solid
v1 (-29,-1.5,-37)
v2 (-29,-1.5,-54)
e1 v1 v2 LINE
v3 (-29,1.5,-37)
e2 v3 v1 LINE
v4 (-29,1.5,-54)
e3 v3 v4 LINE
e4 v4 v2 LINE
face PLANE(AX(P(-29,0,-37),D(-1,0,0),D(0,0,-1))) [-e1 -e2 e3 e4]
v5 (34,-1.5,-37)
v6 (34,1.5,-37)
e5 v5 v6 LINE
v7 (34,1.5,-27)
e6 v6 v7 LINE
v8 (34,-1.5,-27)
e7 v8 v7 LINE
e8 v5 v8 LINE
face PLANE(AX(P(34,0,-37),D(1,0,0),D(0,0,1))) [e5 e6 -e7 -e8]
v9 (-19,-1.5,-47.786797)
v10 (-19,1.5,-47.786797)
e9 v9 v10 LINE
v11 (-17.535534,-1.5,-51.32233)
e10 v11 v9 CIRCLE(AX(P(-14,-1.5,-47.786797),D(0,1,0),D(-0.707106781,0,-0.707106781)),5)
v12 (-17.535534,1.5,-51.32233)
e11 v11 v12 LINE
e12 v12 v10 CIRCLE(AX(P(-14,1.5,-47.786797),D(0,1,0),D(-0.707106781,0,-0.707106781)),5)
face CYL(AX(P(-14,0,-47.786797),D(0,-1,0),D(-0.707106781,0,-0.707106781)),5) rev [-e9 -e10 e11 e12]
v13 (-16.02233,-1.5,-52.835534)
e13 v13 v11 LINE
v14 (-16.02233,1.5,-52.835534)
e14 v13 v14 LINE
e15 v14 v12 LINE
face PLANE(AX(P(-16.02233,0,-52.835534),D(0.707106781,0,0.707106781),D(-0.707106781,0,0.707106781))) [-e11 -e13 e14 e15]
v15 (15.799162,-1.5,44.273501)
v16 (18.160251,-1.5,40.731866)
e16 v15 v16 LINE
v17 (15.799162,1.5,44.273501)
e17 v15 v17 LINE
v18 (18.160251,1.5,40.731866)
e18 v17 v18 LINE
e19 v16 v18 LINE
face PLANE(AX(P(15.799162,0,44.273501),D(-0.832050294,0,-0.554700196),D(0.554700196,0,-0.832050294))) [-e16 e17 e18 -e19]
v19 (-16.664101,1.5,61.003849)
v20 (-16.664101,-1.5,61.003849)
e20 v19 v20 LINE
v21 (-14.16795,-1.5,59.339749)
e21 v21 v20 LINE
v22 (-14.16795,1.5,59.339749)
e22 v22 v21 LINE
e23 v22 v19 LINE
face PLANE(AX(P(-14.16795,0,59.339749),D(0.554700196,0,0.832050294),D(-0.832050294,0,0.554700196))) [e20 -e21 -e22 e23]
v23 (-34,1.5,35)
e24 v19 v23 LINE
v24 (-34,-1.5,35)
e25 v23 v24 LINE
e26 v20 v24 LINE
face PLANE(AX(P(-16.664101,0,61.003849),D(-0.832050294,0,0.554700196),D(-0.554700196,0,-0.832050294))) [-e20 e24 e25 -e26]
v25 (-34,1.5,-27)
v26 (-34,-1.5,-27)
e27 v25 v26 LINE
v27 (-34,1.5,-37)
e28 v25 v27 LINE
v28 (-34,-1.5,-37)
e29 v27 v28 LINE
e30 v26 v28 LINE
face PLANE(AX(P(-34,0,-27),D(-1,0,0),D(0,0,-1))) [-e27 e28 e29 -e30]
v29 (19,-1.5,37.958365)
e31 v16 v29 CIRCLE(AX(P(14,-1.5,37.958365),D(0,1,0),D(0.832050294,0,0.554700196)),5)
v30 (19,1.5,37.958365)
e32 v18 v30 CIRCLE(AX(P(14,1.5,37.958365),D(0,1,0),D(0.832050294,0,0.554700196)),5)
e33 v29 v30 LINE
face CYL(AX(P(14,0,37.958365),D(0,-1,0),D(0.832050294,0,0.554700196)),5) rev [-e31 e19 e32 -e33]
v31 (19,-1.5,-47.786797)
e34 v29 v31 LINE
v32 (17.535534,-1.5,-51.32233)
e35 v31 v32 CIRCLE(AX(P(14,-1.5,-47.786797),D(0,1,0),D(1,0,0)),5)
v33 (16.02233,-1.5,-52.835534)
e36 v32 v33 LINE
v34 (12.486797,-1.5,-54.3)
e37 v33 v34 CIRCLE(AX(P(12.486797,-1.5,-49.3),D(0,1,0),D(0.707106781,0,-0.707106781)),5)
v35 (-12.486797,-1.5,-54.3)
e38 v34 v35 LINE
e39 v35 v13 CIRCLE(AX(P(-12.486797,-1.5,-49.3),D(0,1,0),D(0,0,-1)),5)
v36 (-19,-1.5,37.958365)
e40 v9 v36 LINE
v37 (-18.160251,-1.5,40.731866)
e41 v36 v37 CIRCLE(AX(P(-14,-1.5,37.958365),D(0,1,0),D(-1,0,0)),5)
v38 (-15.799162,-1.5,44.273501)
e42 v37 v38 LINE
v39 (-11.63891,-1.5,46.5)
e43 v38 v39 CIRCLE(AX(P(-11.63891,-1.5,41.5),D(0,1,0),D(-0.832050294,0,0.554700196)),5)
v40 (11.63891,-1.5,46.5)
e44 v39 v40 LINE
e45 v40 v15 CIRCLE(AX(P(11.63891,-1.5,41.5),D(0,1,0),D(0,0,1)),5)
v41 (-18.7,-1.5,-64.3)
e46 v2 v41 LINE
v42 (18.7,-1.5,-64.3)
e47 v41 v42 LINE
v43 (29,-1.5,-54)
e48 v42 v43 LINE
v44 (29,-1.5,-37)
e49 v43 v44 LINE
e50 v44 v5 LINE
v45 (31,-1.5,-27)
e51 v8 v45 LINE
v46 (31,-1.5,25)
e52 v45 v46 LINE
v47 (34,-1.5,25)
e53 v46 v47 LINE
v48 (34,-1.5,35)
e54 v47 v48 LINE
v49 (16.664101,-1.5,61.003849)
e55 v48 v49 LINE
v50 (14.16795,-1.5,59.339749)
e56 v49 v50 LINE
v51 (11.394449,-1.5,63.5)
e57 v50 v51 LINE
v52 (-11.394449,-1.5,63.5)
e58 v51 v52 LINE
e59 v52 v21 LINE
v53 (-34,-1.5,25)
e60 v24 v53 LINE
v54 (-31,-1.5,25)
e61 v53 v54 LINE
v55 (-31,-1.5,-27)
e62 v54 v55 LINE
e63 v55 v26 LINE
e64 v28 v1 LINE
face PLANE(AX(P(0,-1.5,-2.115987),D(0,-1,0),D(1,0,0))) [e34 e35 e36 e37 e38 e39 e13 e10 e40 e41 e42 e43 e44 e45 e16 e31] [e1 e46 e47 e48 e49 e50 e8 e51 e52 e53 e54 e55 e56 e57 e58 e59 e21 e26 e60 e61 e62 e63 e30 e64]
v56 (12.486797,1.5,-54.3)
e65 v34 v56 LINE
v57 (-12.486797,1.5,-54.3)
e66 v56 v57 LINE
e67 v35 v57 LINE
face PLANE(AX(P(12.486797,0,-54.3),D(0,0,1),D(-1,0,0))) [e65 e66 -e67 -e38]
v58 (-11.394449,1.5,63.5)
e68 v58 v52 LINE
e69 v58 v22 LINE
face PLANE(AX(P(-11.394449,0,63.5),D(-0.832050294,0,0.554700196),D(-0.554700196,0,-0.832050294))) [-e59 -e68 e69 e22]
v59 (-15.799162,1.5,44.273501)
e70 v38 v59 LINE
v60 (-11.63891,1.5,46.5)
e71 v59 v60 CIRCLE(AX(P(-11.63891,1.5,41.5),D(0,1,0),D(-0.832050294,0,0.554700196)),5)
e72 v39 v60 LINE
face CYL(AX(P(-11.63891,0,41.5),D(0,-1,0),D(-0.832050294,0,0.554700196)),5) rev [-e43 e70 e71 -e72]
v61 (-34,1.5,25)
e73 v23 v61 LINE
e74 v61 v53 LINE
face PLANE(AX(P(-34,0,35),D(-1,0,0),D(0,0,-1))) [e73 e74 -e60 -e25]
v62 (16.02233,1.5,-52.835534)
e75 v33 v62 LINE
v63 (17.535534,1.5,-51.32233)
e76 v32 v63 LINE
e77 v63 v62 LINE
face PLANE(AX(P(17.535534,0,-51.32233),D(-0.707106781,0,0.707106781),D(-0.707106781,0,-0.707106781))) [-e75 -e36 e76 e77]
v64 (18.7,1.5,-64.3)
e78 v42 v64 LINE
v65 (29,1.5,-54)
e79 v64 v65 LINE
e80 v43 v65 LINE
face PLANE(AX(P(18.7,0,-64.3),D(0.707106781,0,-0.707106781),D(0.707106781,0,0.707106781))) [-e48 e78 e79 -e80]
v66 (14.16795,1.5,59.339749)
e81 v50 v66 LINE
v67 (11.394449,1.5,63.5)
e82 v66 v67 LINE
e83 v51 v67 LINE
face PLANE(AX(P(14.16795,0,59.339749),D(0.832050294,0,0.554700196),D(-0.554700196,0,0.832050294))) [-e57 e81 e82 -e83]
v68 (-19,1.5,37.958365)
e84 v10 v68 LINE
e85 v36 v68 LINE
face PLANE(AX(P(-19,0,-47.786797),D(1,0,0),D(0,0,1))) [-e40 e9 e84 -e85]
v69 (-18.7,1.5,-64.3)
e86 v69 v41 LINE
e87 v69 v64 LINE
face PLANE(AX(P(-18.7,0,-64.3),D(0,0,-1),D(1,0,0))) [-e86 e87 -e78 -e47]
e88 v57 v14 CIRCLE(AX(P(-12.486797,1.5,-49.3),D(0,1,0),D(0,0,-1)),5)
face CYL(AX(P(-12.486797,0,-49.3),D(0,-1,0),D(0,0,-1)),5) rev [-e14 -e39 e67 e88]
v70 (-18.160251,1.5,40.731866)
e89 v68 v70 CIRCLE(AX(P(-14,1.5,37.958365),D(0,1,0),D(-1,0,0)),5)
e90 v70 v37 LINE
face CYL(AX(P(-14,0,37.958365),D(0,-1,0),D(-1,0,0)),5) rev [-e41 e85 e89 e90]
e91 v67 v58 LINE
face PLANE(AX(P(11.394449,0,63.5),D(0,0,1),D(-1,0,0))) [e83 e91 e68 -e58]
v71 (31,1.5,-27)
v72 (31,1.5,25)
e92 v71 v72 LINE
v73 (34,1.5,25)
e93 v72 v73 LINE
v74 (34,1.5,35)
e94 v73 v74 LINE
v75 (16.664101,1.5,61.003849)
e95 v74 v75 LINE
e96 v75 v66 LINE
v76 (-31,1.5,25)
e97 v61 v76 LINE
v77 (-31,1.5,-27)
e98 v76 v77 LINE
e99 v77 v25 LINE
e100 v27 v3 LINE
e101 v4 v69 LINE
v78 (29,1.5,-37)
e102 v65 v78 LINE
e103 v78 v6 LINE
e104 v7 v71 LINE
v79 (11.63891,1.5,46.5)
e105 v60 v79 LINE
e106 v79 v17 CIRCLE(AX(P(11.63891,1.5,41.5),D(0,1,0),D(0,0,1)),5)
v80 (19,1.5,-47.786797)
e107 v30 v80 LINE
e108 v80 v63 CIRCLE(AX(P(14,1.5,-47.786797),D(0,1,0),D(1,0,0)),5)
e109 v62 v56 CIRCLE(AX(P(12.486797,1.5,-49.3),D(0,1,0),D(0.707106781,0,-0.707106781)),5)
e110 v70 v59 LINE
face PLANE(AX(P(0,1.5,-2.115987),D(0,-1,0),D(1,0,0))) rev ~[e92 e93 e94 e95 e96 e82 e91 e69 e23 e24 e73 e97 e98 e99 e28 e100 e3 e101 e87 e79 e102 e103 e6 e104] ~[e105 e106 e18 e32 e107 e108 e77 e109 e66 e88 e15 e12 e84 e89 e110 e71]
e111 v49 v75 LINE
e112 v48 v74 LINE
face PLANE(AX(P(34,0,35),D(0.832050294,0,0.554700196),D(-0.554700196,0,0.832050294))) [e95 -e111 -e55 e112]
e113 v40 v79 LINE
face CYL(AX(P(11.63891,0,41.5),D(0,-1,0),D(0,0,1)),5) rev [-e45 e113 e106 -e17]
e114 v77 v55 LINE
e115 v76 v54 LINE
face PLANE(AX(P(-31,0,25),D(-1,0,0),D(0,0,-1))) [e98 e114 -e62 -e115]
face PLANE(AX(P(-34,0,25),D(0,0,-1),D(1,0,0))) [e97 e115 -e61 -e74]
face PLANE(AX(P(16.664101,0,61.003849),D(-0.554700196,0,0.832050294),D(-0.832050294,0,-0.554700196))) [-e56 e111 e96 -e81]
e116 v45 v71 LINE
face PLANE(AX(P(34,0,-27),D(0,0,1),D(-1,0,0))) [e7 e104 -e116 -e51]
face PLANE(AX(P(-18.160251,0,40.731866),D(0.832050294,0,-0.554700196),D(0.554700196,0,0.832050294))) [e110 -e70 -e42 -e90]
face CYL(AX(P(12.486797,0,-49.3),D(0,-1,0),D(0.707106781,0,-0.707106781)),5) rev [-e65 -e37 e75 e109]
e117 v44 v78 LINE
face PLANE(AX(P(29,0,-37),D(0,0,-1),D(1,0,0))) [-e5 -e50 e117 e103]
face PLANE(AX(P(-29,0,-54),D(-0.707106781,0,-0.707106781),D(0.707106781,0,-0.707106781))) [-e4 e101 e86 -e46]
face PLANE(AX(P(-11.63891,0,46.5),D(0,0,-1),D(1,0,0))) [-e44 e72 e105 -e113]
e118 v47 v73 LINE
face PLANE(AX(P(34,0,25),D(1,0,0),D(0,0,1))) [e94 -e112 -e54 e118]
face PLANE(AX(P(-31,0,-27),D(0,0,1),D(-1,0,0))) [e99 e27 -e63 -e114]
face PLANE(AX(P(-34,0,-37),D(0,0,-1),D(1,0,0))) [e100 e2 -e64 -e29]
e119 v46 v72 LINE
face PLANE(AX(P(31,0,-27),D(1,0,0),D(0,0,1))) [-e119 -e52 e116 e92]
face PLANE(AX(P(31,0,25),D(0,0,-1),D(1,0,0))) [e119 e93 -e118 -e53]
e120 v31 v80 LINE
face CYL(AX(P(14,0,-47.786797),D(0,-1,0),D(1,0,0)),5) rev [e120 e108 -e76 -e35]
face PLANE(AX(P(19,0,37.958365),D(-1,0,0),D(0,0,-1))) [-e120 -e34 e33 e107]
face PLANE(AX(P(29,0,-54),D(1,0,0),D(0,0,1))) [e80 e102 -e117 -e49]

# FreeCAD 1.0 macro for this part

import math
import FreeCAD as App
import Part
import Sketcher

doc = App.newDocument("Part")
body = doc.addObject("PartDesign::Body", "Body")

# Sketch on XZ plane
sketch1 = body.newObject("Sketcher::SketchObject", "Sketch")
sketch1.AttachmentSupport = (doc.getObject("XZ_Plane"), [""])
sketch1.MapMode = "FlatFace"
sketch1.addGeometry([
    Part.LineSegment(App.Vector(11.4, 63.5, 0), App.Vector(-11.4, 63.5, 0)),  # 0
    Part.LineSegment(App.Vector(-11.4, 63.5, 0), App.Vector(-14.2, 59.3, 0)),  # 1
    Part.LineSegment(App.Vector(-14.2, 59.3, 0), App.Vector(-16.7, 61, 0)),  # 2
    Part.LineSegment(App.Vector(-16.7, 61, 0), App.Vector(-34, 35, 0)),  # 3
    Part.LineSegment(App.Vector(-34, 35, 0), App.Vector(-34, 25, 0)),  # 4
    Part.LineSegment(App.Vector(-34, 25, 0), App.Vector(-31, 25, 0)),  # 5
    Part.LineSegment(App.Vector(-31, 25, 0), App.Vector(-31, -27, 0)),  # 6
    Part.LineSegment(App.Vector(-31, -27, 0), App.Vector(-34, -27, 0)),  # 7
    Part.LineSegment(App.Vector(-34, -27, 0), App.Vector(-34, -37, 0)),  # 8
    Part.LineSegment(App.Vector(-34, -37, 0), App.Vector(-29, -37, 0)),  # 9
    Part.LineSegment(App.Vector(-29, -37, 0), App.Vector(-29, -54, 0)),  # 10
    Part.LineSegment(App.Vector(-29, -54, 0), App.Vector(-18.7, -64.3, 0)),  # 11
    Part.LineSegment(App.Vector(-18.7, -64.3, 0), App.Vector(18.7, -64.3, 0)),  # 12
    Part.LineSegment(App.Vector(18.7, -64.3, 0), App.Vector(29, -54, 0)),  # 13
    Part.LineSegment(App.Vector(29, -54, 0), App.Vector(29, -37, 0)),  # 14
    Part.LineSegment(App.Vector(29, -37, 0), App.Vector(34, -37, 0)),  # 15
    Part.LineSegment(App.Vector(34, -37, 0), App.Vector(34, -27, 0)),  # 16
    Part.LineSegment(App.Vector(34, -27, 0), App.Vector(31, -27, 0)),  # 17
    Part.LineSegment(App.Vector(31, -27, 0), App.Vector(31, 25, 0)),  # 18
    Part.LineSegment(App.Vector(31, 25, 0), App.Vector(34, 25, 0)),  # 19
    Part.LineSegment(App.Vector(34, 25, 0), App.Vector(34, 35, 0)),  # 20
    Part.LineSegment(App.Vector(34, 35, 0), App.Vector(16.7, 61, 0)),  # 21
    Part.LineSegment(App.Vector(16.7, 61, 0), App.Vector(14.2, 59.3, 0)),  # 22
    Part.LineSegment(App.Vector(14.2, 59.3, 0), App.Vector(11.4, 63.5, 0)),  # 23
    Part.ArcOfCircle(Part.Circle(App.Vector(-14, 38, 0), App.Vector(0, 0, 1), 5), math.radians(146), math.radians(180)),  # 24
    Part.LineSegment(App.Vector(-18.2, 40.7, 0), App.Vector(-15.8, 44.3, 0)),  # 25
    Part.ArcOfCircle(Part.Circle(App.Vector(-11.6, 41.5, 0), App.Vector(0, 0, 1), 5), math.radians(90), math.radians(146)),  # 26
    Part.LineSegment(App.Vector(-11.6, 46.5, 0), App.Vector(11.6, 46.5, 0)),  # 27
    Part.ArcOfCircle(Part.Circle(App.Vector(11.6, 41.5, 0), App.Vector(0, 0, 1), 5), math.radians(34), math.radians(90)),  # 28
    Part.LineSegment(App.Vector(15.8, 44.3, 0), App.Vector(18.2, 40.7, 0)),  # 29
    Part.ArcOfCircle(Part.Circle(App.Vector(14, 38, 0), App.Vector(0, 0, 1), 5), math.radians(0), math.radians(34)),  # 30
    Part.LineSegment(App.Vector(19, 38, 0), App.Vector(19, -47.8, 0)),  # 31
    Part.ArcOfCircle(Part.Circle(App.Vector(14, -47.8, 0), App.Vector(0, 0, 1), 5), math.radians(-45), math.radians(0)),  # 32
    Part.LineSegment(App.Vector(17.5, -51.3, 0), App.Vector(16, -52.8, 0)),  # 33
    Part.ArcOfCircle(Part.Circle(App.Vector(12.5, -49.3, 0), App.Vector(0, 0, 1), 5), math.radians(-90), math.radians(-45)),  # 34
    Part.LineSegment(App.Vector(12.5, -54.3, 0), App.Vector(-12.5, -54.3, 0)),  # 35
    Part.ArcOfCircle(Part.Circle(App.Vector(-12.5, -49.3, 0), App.Vector(0, 0, 1), 5), math.radians(-135), math.radians(-90)),  # 36
    Part.LineSegment(App.Vector(-16, -52.8, 0), App.Vector(-17.5, -51.3, 0)),  # 37
    Part.ArcOfCircle(Part.Circle(App.Vector(-14, -47.8, 0), App.Vector(0, 0, 1), 5), math.radians(180), math.radians(225)),  # 38
    Part.LineSegment(App.Vector(-19, -47.8, 0), App.Vector(-19, 38, 0)),  # 39
], False)
sketch1.addConstraint([
    Sketcher.Constraint("Coincident", 0, 2, 1, 1),
    Sketcher.Constraint("Coincident", 1, 2, 2, 1),
    Sketcher.Constraint("Coincident", 2, 2, 3, 1),
    Sketcher.Constraint("Coincident", 3, 2, 4, 1),
    Sketcher.Constraint("Coincident", 4, 2, 5, 1),
    Sketcher.Constraint("Coincident", 5, 2, 6, 1),
    Sketcher.Constraint("Coincident", 6, 2, 7, 1),
    Sketcher.Constraint("Coincident", 7, 2, 8, 1),
    Sketcher.Constraint("Coincident", 8, 2, 9, 1),
    Sketcher.Constraint("Coincident", 9, 2, 10, 1),
    Sketcher.Constraint("Coincident", 10, 2, 11, 1),
    Sketcher.Constraint("Coincident", 11, 2, 12, 1),
    Sketcher.Constraint("Coincident", 12, 2, 13, 1),
    Sketcher.Constraint("Coincident", 13, 2, 14, 1),
    Sketcher.Constraint("Coincident", 14, 2, 15, 1),
    Sketcher.Constraint("Coincident", 15, 2, 16, 1),
    Sketcher.Constraint("Coincident", 16, 2, 17, 1),
    Sketcher.Constraint("Coincident", 17, 2, 18, 1),
    Sketcher.Constraint("Coincident", 18, 2, 19, 1),
    Sketcher.Constraint("Coincident", 19, 2, 20, 1),
    Sketcher.Constraint("Coincident", 20, 2, 21, 1),
    Sketcher.Constraint("Coincident", 21, 2, 22, 1),
    Sketcher.Constraint("Coincident", 22, 2, 23, 1),
    Sketcher.Constraint("Coincident", 23, 2, 0, 1),
    Sketcher.Constraint("Tangent", 24, 1, 25, 1),
    Sketcher.Constraint("Tangent", 25, 2, 26, 2),
    Sketcher.Constraint("Tangent", 26, 1, 27, 1),
    Sketcher.Constraint("Tangent", 27, 2, 28, 2),
    Sketcher.Constraint("Tangent", 28, 1, 29, 1),
    Sketcher.Constraint("Tangent", 29, 2, 30, 2),
    Sketcher.Constraint("Tangent", 30, 1, 31, 1),
    Sketcher.Constraint("Tangent", 31, 2, 32, 2),
    Sketcher.Constraint("Tangent", 32, 1, 33, 1),
    Sketcher.Constraint("Tangent", 33, 2, 34, 2),
    Sketcher.Constraint("Tangent", 34, 1, 35, 1),
    Sketcher.Constraint("Tangent", 35, 2, 36, 2),
    Sketcher.Constraint("Tangent", 36, 1, 37, 1),
    Sketcher.Constraint("Tangent", 37, 2, 38, 2),
    Sketcher.Constraint("Tangent", 38, 1, 39, 1),
    Sketcher.Constraint("Tangent", 39, 2, 24, 2),
    Sketcher.Constraint("Horizontal", 0),
    Sketcher.Constraint("Vertical", 4),
    Sketcher.Constraint("Horizontal", 5),
    Sketcher.Constraint("Vertical", 6),
    Sketcher.Constraint("Horizontal", 7),
    Sketcher.Constraint("Vertical", 8),
    Sketcher.Constraint("Horizontal", 9),
    Sketcher.Constraint("Vertical", 10),
    Sketcher.Constraint("Horizontal", 12),
    Sketcher.Constraint("Vertical", 14),
    Sketcher.Constraint("Horizontal", 15),
    Sketcher.Constraint("Vertical", 16),
    Sketcher.Constraint("Horizontal", 17),
    Sketcher.Constraint("Vertical", 18),
    Sketcher.Constraint("Horizontal", 19),
    Sketcher.Constraint("Vertical", 20),
    Sketcher.Constraint("Horizontal", 27),
    Sketcher.Constraint("Vertical", 31),
    Sketcher.Constraint("Horizontal", 35),
    Sketcher.Constraint("Vertical", 39),
    Sketcher.Constraint("Equal", 24, 26),
    Sketcher.Constraint("Equal", 26, 28),
    Sketcher.Constraint("Equal", 28, 30),
    Sketcher.Constraint("Equal", 30, 32),
    Sketcher.Constraint("Equal", 32, 34),
    Sketcher.Constraint("Equal", 34, 36),
    Sketcher.Constraint("Equal", 36, 38),
    Sketcher.Constraint("Symmetric", 24, 3, 30, 3, -2),
    Sketcher.Constraint("Symmetric", 10, 2, 13, 2, -2),
    Sketcher.Constraint("Symmetric", 8, 2, 15, 2, -2),
    Sketcher.Constraint("Symmetric", 6, 2, 17, 2, -2),
    Sketcher.Constraint("Symmetric", 4, 2, 19, 2, -2),
    Sketcher.Constraint("Symmetric", 2, 2, 21, 2, -2),
    Sketcher.Constraint("Symmetric", 1, 2, 22, 2, -2),
    Sketcher.Constraint("Symmetric", 33, 2, 36, 1, -2),
    Sketcher.Constraint("Perpendicular", 1, 2),
    Sketcher.Constraint("Perpendicular", 2, 3),
    Sketcher.Constraint("Perpendicular", 11, 13),
    Sketcher.Constraint("Perpendicular", 21, 22),
    Sketcher.Constraint("Perpendicular", 22, 23),
    Sketcher.Constraint("Parallel", 3, 25),
    Sketcher.Constraint("Parallel", 23, 29),
    Sketcher.Constraint("Parallel", 13, 33),
    Sketcher.Constraint("Perpendicular", 33, 37),
    Sketcher.Constraint("Vertical", 4, 2, 7, 2),
    Sketcher.Constraint("Equal", 4, 8),
    Sketcher.Constraint("Radius", 24, 5.0),
    Sketcher.Constraint("DistanceX", 5, 1, 5, 2, 3.0),
    Sketcher.Constraint("DistanceX", 9, 1, 9, 2, 5.0),
    Sketcher.Constraint("DistanceY", 4, 2, 4, 1, 10.0),
    Sketcher.Constraint("DistanceY", 6, 2, 6, 1, 52.0),
    Sketcher.Constraint("DistanceY", 10, 2, 10, 1, 17.0),
    Sketcher.Constraint("Distance", 1, 5.0),
    Sketcher.Constraint("Distance", 2, 3.0),
    Sketcher.Constraint("DistanceX", 12, 1, 12, 2, 37.4),
    Sketcher.Constraint("DistanceX", 24, 3, -1, 1, 14.0),
    Sketcher.Constraint("DistanceX", 3, 2, -1, 1, 34.0),
    Sketcher.Constraint("DistanceY", -1, 1, 3, 2, 35.0),
    Sketcher.Constraint("DistanceY", 26, 3, 0, 2, 22.0),
    Sketcher.Constraint("DistanceY", 11, 2, 36, 3, 15.0),
    Sketcher.Constraint("DistanceY", -1, 1, 26, 3, 41.5),
    Sketcher.Constraint("DistanceX", 27, 1, 27, 2, 23.277821),
    Sketcher.Constraint("DistanceY", 31, 2, 31, 1, 85.745162),
    Sketcher.Constraint("DistanceX", 2, 2, -1, 1, 16.664101),
])
pad1 = body.newObject("PartDesign::Pad", "Pad")
pad1.Profile = sketch1
pad1.Length = 3
pad1.Midplane = True

doc.recompute()
